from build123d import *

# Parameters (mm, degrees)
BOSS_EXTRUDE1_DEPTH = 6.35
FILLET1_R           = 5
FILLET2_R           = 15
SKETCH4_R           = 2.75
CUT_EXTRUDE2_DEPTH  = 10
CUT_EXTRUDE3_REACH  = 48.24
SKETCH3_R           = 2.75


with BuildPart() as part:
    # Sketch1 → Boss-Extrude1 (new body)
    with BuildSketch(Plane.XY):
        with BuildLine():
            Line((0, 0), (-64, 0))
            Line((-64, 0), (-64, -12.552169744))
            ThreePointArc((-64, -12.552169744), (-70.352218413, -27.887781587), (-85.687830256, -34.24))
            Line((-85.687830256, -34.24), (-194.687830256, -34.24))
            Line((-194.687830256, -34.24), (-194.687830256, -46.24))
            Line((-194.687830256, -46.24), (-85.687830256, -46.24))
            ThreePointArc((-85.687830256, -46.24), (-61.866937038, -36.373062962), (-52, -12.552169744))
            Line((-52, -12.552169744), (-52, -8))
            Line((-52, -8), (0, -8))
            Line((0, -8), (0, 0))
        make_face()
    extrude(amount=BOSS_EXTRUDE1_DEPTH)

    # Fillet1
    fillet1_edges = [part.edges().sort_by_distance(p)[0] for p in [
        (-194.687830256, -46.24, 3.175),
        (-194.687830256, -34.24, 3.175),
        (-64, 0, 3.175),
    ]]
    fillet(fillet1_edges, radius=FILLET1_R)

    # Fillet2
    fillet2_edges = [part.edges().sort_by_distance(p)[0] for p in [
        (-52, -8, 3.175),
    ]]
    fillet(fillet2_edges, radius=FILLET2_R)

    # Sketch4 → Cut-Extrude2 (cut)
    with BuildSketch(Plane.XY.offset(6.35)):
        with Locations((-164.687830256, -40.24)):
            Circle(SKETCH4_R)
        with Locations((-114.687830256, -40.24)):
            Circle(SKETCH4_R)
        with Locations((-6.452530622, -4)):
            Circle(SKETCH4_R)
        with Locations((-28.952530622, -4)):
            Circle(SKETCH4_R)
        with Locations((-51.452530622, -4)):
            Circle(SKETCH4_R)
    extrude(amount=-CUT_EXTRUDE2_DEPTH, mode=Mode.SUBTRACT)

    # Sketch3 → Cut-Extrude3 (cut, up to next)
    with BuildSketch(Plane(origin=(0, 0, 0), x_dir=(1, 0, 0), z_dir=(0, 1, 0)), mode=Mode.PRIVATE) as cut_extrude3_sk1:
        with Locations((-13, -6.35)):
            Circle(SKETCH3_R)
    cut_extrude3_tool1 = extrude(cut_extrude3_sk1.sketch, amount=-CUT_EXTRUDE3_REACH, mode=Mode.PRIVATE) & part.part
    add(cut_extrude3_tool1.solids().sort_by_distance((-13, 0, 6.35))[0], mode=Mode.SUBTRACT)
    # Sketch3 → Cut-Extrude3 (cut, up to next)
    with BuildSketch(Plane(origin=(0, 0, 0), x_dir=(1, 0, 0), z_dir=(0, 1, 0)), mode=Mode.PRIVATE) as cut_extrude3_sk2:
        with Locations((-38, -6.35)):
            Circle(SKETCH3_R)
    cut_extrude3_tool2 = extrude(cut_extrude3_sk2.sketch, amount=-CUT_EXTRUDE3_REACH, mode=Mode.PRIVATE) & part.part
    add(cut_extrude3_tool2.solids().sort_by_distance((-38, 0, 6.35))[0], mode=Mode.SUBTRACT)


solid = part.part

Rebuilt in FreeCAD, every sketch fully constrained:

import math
import FreeCAD as App
import Part
import Sketcher

V = App.Vector
Q = App.Units.Quantity


def edges_at(feature, points):
    """Names of the edges that pass closest to the given points."""
    edges = feature.Shape.Edges
    near = lambda p: min(range(len(edges)), key=lambda i: edges[i].distToShape(Part.Vertex(*p))[0])
    return sorted({f"Edge{near(p) + 1}" for p in points})

doc = App.newDocument("Part")
body = doc.addObject("PartDesign::Body", "Body")

sketch1 = body.newObject("Sketcher::SketchObject", "Sketch")
sketch1.AttachmentSupport = (doc.getObject("XY_Plane"), [""])
sketch1.MapMode = "FlatFace"
sketch1.addGeometry([
    Part.LineSegment(V(0, 0, 0), V(-64, 0, 0)),
    Part.LineSegment(V(-64, 0, 0), V(-64, -12.6, 0)),
    Part.ArcOfCircle(Part.Circle(V(-85.7, -12.6, 0), V(0, 0, 1), 21.7), math.radians(-90), math.radians(0)),
    Part.LineSegment(V(-85.7, -34.2, 0), V(-194.7, -34.2, 0)),
    Part.LineSegment(V(-194.7, -34.2, 0), V(-194.7, -46.2, 0)),
    Part.LineSegment(V(-194.7, -46.2, 0), V(-85.7, -46.2, 0)),
    Part.ArcOfCircle(Part.Circle(V(-85.7, -12.6, 0), V(0, 0, 1), 33.7), math.radians(-90), math.radians(0)),
    Part.LineSegment(V(-52, -12.6, 0), V(-52, -8, 0)),
    Part.LineSegment(V(-52, -8, 0), V(0, -8, 0)),
    Part.LineSegment(V(0, -8, 0), V(0, 0, 0)),
], False)
sketch1.addConstraint([
    Sketcher.Constraint("Coincident", 0, 2, 1, 1),
    Sketcher.Constraint("Tangent", 1, 2, 2, 2),
    Sketcher.Constraint("Tangent", 2, 1, 3, 1),
    Sketcher.Constraint("Coincident", 3, 2, 4, 1),
    Sketcher.Constraint("Coincident", 4, 2, 5, 1),
    Sketcher.Constraint("Tangent", 5, 2, 6, 1),
    Sketcher.Constraint("Tangent", 6, 2, 7, 1),
    Sketcher.Constraint("Coincident", 7, 2, 8, 1),
    Sketcher.Constraint("Coincident", 8, 2, 9, 1),
    Sketcher.Constraint("Coincident", 9, 2, 0, 1),
    Sketcher.Constraint("Horizontal", 0),
    Sketcher.Constraint("Vertical", 1),
    Sketcher.Constraint("Horizontal", 3),
    Sketcher.Constraint("Vertical", 4),
    Sketcher.Constraint("Horizontal", 5),
    Sketcher.Constraint("Vertical", 7),
    Sketcher.Constraint("Horizontal", 8),
    Sketcher.Constraint("Vertical", 9),
    Sketcher.Constraint("Coincident", 9, 2, -1, 1),
    Sketcher.Constraint("Coincident", 6, 3, 2, 3),
    Sketcher.Constraint("DistanceX", 0, 2, 0, 1, Q("64 mm")),
    Sketcher.Constraint("DistanceX", 3, 2, 3, 1, Q("109 mm")),
    Sketcher.Constraint("DistanceX", 8, 1, 8, 2, Q("52 mm")),
    Sketcher.Constraint("DistanceY", 9, 1, 9, 2, Q("8 mm")),
    Sketcher.Constraint("DistanceY", 2, 1, -1, 1, Q("34.24 mm")),
    Sketcher.Constraint("Radius", 2, Q("21.68783 mm")),
])
pad1 = body.newObject("PartDesign::Pad", "Pad")
pad1.Profile = sketch1
pad1.Length = 6.35
doc.recompute()

fillet = body.newObject("PartDesign::Fillet", "Fillet")
fillet.Base = (pad1, edges_at(pad1, [(-194.688, -46.24, 3.175), (-194.688, -34.24, 3.175), (-64, 0, 3.175)]))
fillet.Radius = 5
doc.recompute()

fillet2 = body.newObject("PartDesign::Fillet", "Fillet001")
fillet2.Base = (fillet, edges_at(fillet, [(-52, -8, 3.175)]))
fillet2.Radius = 15

sketch2 = body.newObject("Sketcher::SketchObject", "Sketch001")
sketch2.AttachmentSupport = (doc.getObject("XY_Plane"), [""])
sketch2.MapMode = "FlatFace"
sketch2.AttachmentOffset = App.Placement(V(0, 0, 6.35), App.Rotation())
sketch2.addGeometry([
    Part.Circle(V(-164.7, -40.2, 0), V(0, 0, 1), 2.8),
    Part.Circle(V(-114.7, -40.2, 0), V(0, 0, 1), 2.8),
    Part.Circle(V(-6.5, -4, 0), V(0, 0, 1), 2.8),
    Part.Circle(V(-29, -4, 0), V(0, 0, 1), 2.8),
    Part.Circle(V(-51.5, -4, 0), V(0, 0, 1), 2.8),
], False)
sketch2.addConstraint([
    Sketcher.Constraint("Equal", 0, 1),
    Sketcher.Constraint("Equal", 1, 2),
    Sketcher.Constraint("Equal", 2, 3),
    Sketcher.Constraint("Equal", 3, 4),
    Sketcher.Constraint("Horizontal", 0, 3, 1, 3),
    Sketcher.Constraint("Horizontal", 2, 3, 3, 3),
    Sketcher.Constraint("Horizontal", 3, 3, 4, 3),
    Sketcher.Constraint("Diameter", 0, Q("5.5 mm")),
    Sketcher.Constraint("DistanceY", 2, 3, -1, 1, Q("4 mm")),
    Sketcher.Constraint("DistanceX", 0, 3, 1, 3, Q("50 mm")),
    Sketcher.Constraint("DistanceX", 4, 3, 2, 3, Q("45 mm")),
    Sketcher.Constraint("DistanceX", 3, 3, 2, 3, Q("22.5 mm")),
    Sketcher.Constraint("DistanceY", 0, 3, -1, 1, Q("40.24 mm")),
    Sketcher.Constraint("DistanceX", 1, 3, 2, 3, Q("108.2353 mm")),
    Sketcher.Constraint("DistanceX", 0, 3, -1, 1, Q("164.68783 mm")),
])
pocket1 = body.newObject("PartDesign::Pocket", "Pocket")
pocket1.Profile = sketch2
pocket1.Length = 10

sketch3 = body.newObject("Sketcher::SketchObject", "Sketch002")
sketch3.AttachmentSupport = (doc.getObject("XZ_Plane"), [""])
sketch3.MapMode = "FlatFace"
sketch3.addGeometry(Part.Circle(V(-13, 6.3, 0), V(0, 0, 1), 2.8), False)
sketch3.addConstraint([
    Sketcher.Constraint("Diameter", 0, Q("5.5 mm")),
    Sketcher.Constraint("DistanceX", 0, 3, -1, 1, Q("13 mm")),
    Sketcher.Constraint("DistanceY", -1, 1, 0, 3, Q("6.35 mm")),
])
pocket2 = body.newObject("PartDesign::Pocket", "Pocket001")
pocket2.Profile = sketch3
pocket2.Type = "UpToFirst"
pocket2.Reversed = True

sketch4 = body.newObject("Sketcher::SketchObject", "Sketch003")
sketch4.AttachmentSupport = (doc.getObject("XZ_Plane"), [""])
sketch4.MapMode = "FlatFace"
sketch4.addGeometry(Part.Circle(V(-38, 6.3, 0), V(0, 0, 1), 2.8), False)
sketch4.addConstraint([
    Sketcher.Constraint("Diameter", 0, Q("5.5 mm")),
    Sketcher.Constraint("DistanceX", 0, 3, -1, 1, Q("38 mm")),
    Sketcher.Constraint("DistanceY", -1, 1, 0, 3, Q("6.35 mm")),
])
pocket3 = body.newObject("PartDesign::Pocket", "Pocket002")
pocket3.Profile = sketch4
pocket3.Length = 8.229841
pocket3.Reversed = True

doc.recompute()
